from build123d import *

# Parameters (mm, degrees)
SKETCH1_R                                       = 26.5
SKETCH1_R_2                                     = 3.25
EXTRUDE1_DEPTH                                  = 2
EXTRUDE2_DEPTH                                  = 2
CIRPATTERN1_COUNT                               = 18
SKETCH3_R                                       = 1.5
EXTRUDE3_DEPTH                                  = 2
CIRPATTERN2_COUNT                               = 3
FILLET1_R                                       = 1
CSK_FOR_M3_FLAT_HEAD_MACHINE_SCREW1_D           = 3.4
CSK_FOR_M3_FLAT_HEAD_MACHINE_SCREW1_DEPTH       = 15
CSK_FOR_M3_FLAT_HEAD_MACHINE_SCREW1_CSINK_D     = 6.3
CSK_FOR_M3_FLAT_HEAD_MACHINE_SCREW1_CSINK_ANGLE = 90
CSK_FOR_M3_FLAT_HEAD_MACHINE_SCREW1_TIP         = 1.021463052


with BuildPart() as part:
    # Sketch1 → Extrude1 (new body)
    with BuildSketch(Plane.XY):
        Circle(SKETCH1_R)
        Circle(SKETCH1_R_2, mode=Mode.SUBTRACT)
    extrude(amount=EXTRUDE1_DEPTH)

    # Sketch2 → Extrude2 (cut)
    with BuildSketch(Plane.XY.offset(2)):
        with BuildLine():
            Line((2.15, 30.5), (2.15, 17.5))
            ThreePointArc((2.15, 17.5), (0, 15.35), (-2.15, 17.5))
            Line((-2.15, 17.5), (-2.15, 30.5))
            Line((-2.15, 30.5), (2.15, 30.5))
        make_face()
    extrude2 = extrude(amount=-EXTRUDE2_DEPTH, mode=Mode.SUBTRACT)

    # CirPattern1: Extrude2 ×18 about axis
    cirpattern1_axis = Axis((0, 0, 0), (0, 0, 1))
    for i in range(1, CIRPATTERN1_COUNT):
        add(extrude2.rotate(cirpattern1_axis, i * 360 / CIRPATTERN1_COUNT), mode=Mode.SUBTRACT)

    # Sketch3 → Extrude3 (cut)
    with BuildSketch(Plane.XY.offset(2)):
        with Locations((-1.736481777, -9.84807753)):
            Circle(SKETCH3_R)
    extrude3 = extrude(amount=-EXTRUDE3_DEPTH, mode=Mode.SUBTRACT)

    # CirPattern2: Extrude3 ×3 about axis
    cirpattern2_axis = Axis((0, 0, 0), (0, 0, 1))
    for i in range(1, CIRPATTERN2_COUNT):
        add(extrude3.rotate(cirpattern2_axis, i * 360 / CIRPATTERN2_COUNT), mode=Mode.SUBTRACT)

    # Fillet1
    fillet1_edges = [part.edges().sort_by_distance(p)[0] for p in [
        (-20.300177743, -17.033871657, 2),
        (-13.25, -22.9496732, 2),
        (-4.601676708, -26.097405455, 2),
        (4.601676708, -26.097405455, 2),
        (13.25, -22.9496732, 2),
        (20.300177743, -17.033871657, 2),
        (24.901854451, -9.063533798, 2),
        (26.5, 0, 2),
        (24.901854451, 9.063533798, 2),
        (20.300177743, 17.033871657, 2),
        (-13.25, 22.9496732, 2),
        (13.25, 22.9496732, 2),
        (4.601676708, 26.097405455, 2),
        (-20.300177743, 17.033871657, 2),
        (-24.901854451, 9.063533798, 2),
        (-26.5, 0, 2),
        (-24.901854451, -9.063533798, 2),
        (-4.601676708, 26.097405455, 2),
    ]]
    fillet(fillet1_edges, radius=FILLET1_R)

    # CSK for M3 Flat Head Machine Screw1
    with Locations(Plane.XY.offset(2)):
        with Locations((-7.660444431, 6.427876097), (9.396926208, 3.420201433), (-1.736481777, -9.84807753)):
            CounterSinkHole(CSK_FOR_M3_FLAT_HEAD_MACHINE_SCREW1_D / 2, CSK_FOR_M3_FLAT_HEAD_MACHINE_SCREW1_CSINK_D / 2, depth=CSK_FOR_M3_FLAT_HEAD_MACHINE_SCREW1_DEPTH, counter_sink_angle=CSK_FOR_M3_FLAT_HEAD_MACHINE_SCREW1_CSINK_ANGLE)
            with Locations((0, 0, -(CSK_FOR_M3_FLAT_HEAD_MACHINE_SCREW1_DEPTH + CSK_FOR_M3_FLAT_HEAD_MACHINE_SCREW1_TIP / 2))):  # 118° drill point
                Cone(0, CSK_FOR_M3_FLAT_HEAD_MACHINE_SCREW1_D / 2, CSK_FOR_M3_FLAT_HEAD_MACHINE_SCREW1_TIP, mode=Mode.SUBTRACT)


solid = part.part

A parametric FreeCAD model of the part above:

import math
import FreeCAD as App
import Part
import Sketcher

V = App.Vector
Q = App.Units.Quantity


def edges_at(feature, points):
    """Names of the edges that pass closest to the given points."""
    edges = feature.Shape.Edges
    near = lambda p: min(range(len(edges)), key=lambda i: edges[i].distToShape(Part.Vertex(*p))[0])
    return sorted({f"Edge{near(p) + 1}" for p in points})

doc = App.newDocument("Part")
body = doc.addObject("PartDesign::Body", "Body")

# Sketch on XY plane
sketch1 = body.newObject("Sketcher::SketchObject", "Sketch")
sketch1.AttachmentSupport = (doc.getObject("XY_Plane"), [""])
sketch1.MapMode = "FlatFace"
sketch1.addGeometry(Part.Circle(V(0, 0, 0), V(0, 0, 1), 26.5), False)
sketch1.addGeometry(Part.Circle(V(0, 0, 0), V(0, 0, 1), 3.25), False)
sketch1.addConstraint(Sketcher.Constraint("Coincident", 0, 3, -1, 1))
sketch1.addConstraint(Sketcher.Constraint("Coincident", 1, 3, -1, 1))
sketch1.addConstraint(Sketcher.Constraint("Diameter", 0, Q("53 mm")))
sketch1.addConstraint(Sketcher.Constraint("Diameter", 1, Q("6.5 mm")))
pad1 = body.newObject("PartDesign::Pad", "Pad")
pad1.Profile = sketch1
pad1.Length = 2

# Sketch on XY plane
sketch2 = body.newObject("Sketcher::SketchObject", "Sketch001")
sketch2.AttachmentSupport = (doc.getObject("XY_Plane"), [""])
sketch2.MapMode = "FlatFace"
sketch2.AttachmentOffset = App.Placement(V(0, 0, 2), App.Rotation())
sketch2.addGeometry(Part.LineSegment(V(2.15, 17.5, 0), V(2.15, 30.5, 0)), False)
sketch2.addGeometry(Part.LineSegment(V(2.15, 30.5, 0), V(-2.15, 30.5, 0)), False)
sketch2.addGeometry(Part.LineSegment(V(-2.15, 30.5, 0), V(-2.15, 17.5, 0)), False)
sketch2.addGeometry(Part.ArcOfCircle(Part.Circle(V(0, 17.5, 0), V(0, 0, 1), 2.15), math.radians(180), math.radians(360)), False)
sketch2.addConstraint(Sketcher.Constraint("Coincident", 0, 2, 1, 1))
sketch2.addConstraint(Sketcher.Constraint("Coincident", 1, 2, 2, 1))
sketch2.addConstraint(Sketcher.Constraint("Tangent", 2, 2, 3, 1))
sketch2.addConstraint(Sketcher.Constraint("Tangent", 3, 2, 0, 1))
sketch2.addConstraint(Sketcher.Constraint("Vertical", 0))
sketch2.addConstraint(Sketcher.Constraint("Horizontal", 1))
sketch2.addConstraint(Sketcher.Constraint("Vertical", 2))
sketch2.addConstraint(Sketcher.Constraint("PointOnObject", 3, 3, -2))
sketch2.addConstraint(Sketcher.Constraint("DistanceY", 0, 1, 0, 2, Q("13 mm")))
sketch2.addConstraint(Sketcher.Constraint("Radius", 3, Q("2.15 mm")))
sketch2.addConstraint(Sketcher.Constraint("DistanceY", -1, 1, 3, 3, Q("17.5 mm")))
pocket1 = body.newObject("PartDesign::Pocket", "Pocket")
pocket1.Profile = sketch2
pocket1.Length = 2
doc.recompute()

polarpattern = body.newObject("PartDesign::PolarPattern", "PolarPattern")
polarpattern.Originals = [pocket1]
polarpattern.Axis = (doc.getObject("Z_Axis"), [""])
polarpattern.Angle = 360
polarpattern.Occurrences = 18
body.Tip = polarpattern

# Sketch on XY plane
sketch3 = body.newObject("Sketcher::SketchObject", "Sketch002")
sketch3.AttachmentSupport = (doc.getObject("XY_Plane"), [""])
sketch3.MapMode = "FlatFace"
sketch3.AttachmentOffset = App.Placement(V(0, 0, 2), App.Rotation())
sketch3.addGeometry(Part.Circle(V(-1.736482, -9.848078, 0), V(0, 0, 1), 1.5), False)
sketch3.addConstraint(Sketcher.Constraint("Diameter", 0, Q("3 mm")))
sketch3.addConstraint(Sketcher.Constraint("DistanceX", 0, 3, -1, 1, Q("1.736482 mm")))
sketch3.addConstraint(Sketcher.Constraint("DistanceY", 0, 3, -1, 1, Q("9.848078 mm")))
pocket2 = body.newObject("PartDesign::Pocket", "Pocket001")
pocket2.Profile = sketch3
pocket2.Length = 2
doc.recompute()

polarpattern2 = body.newObject("PartDesign::PolarPattern", "PolarPattern001")
polarpattern2.Originals = [pocket2]
polarpattern2.Axis = (doc.getObject("Z_Axis"), [""])
polarpattern2.Angle = 360
polarpattern2.Occurrences = 3
body.Tip = polarpattern2
doc.recompute()

fillet = body.newObject("PartDesign::Fillet", "Fillet")
fillet.Base = (polarpattern2, edges_at(polarpattern2, [
    (-20.3, -17.034, 2),
    (-13.25, -22.95, 2),
    (-4.602, -26.097, 2),
    (4.602, -26.097, 2),
    (13.25, -22.95, 2),
    (20.3, -17.034, 2),
    (24.902, -9.064, 2),
    (26.5, 0, 2),
    (24.902, 9.064, 2),
    (20.3, 17.034, 2),
    (-13.25, 22.95, 2),
    (13.25, 22.95, 2),
    (4.602, 26.097, 2),
    (-20.3, 17.034, 2),
    (-24.902, 9.064, 2),
    (-26.5, 0, 2),
    (-24.902, -9.064, 2),
    (-4.602, 26.097, 2),
]))
fillet.Radius = 1

# Sketch on XY plane
sketch4 = body.newObject("Sketcher::SketchObject", "Sketch003")
sketch4.AttachmentSupport = (doc.getObject("XY_Plane"), [""])
sketch4.MapMode = "FlatFace"
sketch4.AttachmentOffset = App.Placement(V(0, 0, 2), App.Rotation())
sketch4.addGeometry(Part.Circle(V(-7.660444, 6.427876, 0), V(0, 0, 1), 1.7), False)
sketch4.addGeometry(Part.Circle(V(9.396926, 3.420201, 0), V(0, 0, 1), 1.7), False)
sketch4.addGeometry(Part.Circle(V(-1.736482, -9.848078, 0), V(0, 0, 1), 1.7), False)
sketch4.addConstraint(Sketcher.Constraint("Equal", 0, 1))
sketch4.addConstraint(Sketcher.Constraint("Equal", 1, 2))
sketch4.addConstraint(Sketcher.Constraint("Diameter", 0, Q("3.4 mm")))
sketch4.addConstraint(Sketcher.Constraint("DistanceY", -1, 1, 1, 3, Q("3.420201 mm")))
sketch4.addConstraint(Sketcher.Constraint("DistanceX", 2, 3, -1, 1, Q("1.736482 mm")))
sketch4.addConstraint(Sketcher.Constraint("DistanceX", 0, 3, 1, 3, Q("17.057371 mm")))
sketch4.addConstraint(Sketcher.Constraint("DistanceY", 2, 3, 1, 3, Q("13.268279 mm")))
sketch4.addConstraint(Sketcher.Constraint("DistanceX", 0, 3, -1, 1, Q("7.660444 mm")))
sketch4.addConstraint(Sketcher.Constraint("DistanceY", -1, 1, 0, 3, Q("6.427876 mm")))
doc.recompute()
hole = body.newObject("PartDesign::Hole", "Hole")
hole.Profile = sketch4
hole.ThreadType = "None"
hole.Diameter = 3.4
hole.DepthType = "Dimension"
hole.Depth = 15
hole.DrillPoint = "Angled"
hole.DrillPointAngle = 118
hole.HoleCutType = "Countersink"
hole.HoleCutDiameter = 6.3
hole.HoleCutCountersinkAngle = 90

doc.recompute()
